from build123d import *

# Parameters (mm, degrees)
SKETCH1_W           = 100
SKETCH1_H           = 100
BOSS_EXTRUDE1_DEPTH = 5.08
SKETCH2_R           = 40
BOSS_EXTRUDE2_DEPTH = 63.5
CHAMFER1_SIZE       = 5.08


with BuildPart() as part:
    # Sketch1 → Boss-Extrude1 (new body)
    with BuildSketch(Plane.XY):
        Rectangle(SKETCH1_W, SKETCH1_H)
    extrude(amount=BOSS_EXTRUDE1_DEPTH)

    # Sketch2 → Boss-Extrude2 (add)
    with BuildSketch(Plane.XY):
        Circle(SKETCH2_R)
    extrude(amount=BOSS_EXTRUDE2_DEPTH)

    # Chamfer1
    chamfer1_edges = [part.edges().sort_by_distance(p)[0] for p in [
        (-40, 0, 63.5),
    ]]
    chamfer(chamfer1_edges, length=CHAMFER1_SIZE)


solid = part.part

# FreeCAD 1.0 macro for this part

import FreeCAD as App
import Part
import Sketcher
Q = App.Units.Quantity


def edges_at(feature, points):
    """Names of the edges that pass closest to the given points."""
    edges = feature.Shape.Edges
    near = lambda p: min(range(len(edges)), key=lambda i: edges[i].distToShape(Part.Vertex(*p))[0])
    return sorted({f"Edge{near(p) + 1}" for p in points})


def add_polygon(sketch, points):
    """Adds a closed chain of lines whose ends are joined by coincident constraints."""
    first, n = sketch.GeometryCount, len(points)
    for a, b in zip(points, points[1:] + points[:1]):
        sketch.addGeometry(Part.LineSegment(App.Vector(*a, 0), App.Vector(*b, 0)), False)
    for i in range(n):
        sketch.addConstraint(Sketcher.Constraint("Coincident", first + i, 2, first + (i + 1) % n, 1))

doc = App.newDocument("Part")
body = doc.addObject("PartDesign::Body", "Body")

sketch1 = doc.addObject("Sketcher::SketchObject", "Sketch")
body.addObject(sketch1)
sketch1.AttachmentSupport = (doc.XY_Plane, [""])
sketch1.MapMode = "FlatFace"
add_polygon(sketch1, [(-50, 50), (-50, -50), (50, -50), (50, 50)])
sketch1.addConstraint(Sketcher.Constraint("Vertical", 0))
sketch1.addConstraint(Sketcher.Constraint("Horizontal", 1))
sketch1.addConstraint(Sketcher.Constraint("Vertical", 2))
sketch1.addConstraint(Sketcher.Constraint("Horizontal", 3))
sketch1.addConstraint(Sketcher.Constraint("Symmetric", 0, 2, 2, 2, -1, 1))
sketch1.addConstraint(Sketcher.Constraint("Equal", 3, 0))
sketch1.addConstraint(Sketcher.Constraint("DistanceX", 1, 1, 1, 2, Q("100 mm")))
pad1 = doc.addObject("PartDesign::Pad", "Pad")
body.addObject(pad1)
pad1.Profile = sketch1
pad1.Length = 5.08

sketch2 = doc.addObject("Sketcher::SketchObject", "Sketch001")
body.addObject(sketch2)
sketch2.AttachmentSupport = (doc.XY_Plane, [""])
sketch2.MapMode = "FlatFace"
sketch2.addGeometry(Part.Circle(App.Vector(0, 0, 0), App.Vector(0, 0, 1), 40), False)
sketch2.addConstraint(Sketcher.Constraint("Coincident", 0, 3, -1, 1))
sketch2.addConstraint(Sketcher.Constraint("Diameter", 0, Q("80 mm")))
pad2 = doc.addObject("PartDesign::Pad", "Pad001")
body.addObject(pad2)
pad2.Profile = sketch2
pad2.Length = 63.5
doc.recompute()

chamfer = doc.addObject("PartDesign::Chamfer", "Chamfer")
body.addObject(chamfer)
chamfer.Base = (pad2, edges_at(pad2, [(-40, 0, 63.5)]))
chamfer.Size = 5.08

doc.recompute()
